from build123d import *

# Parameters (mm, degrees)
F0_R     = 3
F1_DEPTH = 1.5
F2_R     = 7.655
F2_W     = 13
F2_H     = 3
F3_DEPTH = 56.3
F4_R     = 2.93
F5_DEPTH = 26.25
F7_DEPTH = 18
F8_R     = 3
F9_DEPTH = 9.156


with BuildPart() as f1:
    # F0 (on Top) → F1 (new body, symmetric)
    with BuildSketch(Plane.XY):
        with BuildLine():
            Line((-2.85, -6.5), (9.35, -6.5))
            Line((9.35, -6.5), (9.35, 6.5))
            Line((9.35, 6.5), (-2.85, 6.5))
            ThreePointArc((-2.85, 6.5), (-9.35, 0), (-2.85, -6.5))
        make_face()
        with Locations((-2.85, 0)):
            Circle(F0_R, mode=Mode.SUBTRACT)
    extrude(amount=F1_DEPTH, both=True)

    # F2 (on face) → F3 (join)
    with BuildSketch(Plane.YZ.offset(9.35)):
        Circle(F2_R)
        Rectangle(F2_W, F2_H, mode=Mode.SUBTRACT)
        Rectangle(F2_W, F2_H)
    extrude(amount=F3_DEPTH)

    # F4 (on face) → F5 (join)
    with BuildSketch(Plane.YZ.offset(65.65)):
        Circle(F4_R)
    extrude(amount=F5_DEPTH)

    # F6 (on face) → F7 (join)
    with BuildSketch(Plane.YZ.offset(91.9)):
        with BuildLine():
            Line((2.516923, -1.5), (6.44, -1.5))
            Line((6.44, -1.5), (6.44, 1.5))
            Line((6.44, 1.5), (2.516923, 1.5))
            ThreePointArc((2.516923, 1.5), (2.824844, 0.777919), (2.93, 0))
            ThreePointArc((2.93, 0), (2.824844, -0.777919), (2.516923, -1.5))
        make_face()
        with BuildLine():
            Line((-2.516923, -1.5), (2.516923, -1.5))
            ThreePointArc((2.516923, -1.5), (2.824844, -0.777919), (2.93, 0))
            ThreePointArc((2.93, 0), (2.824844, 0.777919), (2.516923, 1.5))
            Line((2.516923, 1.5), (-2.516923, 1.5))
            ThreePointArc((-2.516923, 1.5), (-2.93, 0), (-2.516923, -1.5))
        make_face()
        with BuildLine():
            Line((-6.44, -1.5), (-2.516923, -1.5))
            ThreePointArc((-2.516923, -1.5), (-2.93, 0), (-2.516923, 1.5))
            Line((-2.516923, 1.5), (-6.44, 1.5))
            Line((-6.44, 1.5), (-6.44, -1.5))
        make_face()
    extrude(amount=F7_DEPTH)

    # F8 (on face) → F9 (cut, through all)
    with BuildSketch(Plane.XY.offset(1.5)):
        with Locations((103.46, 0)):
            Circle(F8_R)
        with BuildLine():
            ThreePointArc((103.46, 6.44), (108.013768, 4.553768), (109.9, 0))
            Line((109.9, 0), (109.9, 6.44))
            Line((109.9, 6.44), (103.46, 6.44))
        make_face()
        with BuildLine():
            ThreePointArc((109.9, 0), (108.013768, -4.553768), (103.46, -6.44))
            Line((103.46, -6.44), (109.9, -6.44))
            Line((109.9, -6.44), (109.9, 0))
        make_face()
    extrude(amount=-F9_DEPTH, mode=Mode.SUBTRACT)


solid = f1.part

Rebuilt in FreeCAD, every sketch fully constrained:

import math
import FreeCAD as App
import Part
import Sketcher
from FreeCAD import Vector


def add_polygon(sketch, points):
    """Adds a closed chain of lines whose ends are joined by coincident constraints."""
    first, n = sketch.GeometryCount, len(points)
    for a, b in zip(points, points[1:] + points[:1]):
        sketch.addGeometry(Part.LineSegment(App.Vector(*a, 0), App.Vector(*b, 0)), False)
    for i in range(n):
        sketch.addConstraint(Sketcher.Constraint("Coincident", first + i, 2, first + (i + 1) % n, 1))

doc = App.newDocument("Part")
body = doc.addObject("PartDesign::Body", "Body")

sketch1 = body.newObject("Sketcher::SketchObject", "Sketch")
sketch1.AttachmentSupport = (doc.getObject("XY_Plane"), [""])
sketch1.MapMode = "FlatFace"
sketch1.addGeometry([
    Part.LineSegment(Vector(-2.85, -6.5, 0), Vector(9.35, -6.5, 0)),
    Part.LineSegment(Vector(9.35, -6.5, 0), Vector(9.35, 6.5, 0)),
    Part.LineSegment(Vector(9.35, 6.5, 0), Vector(-2.85, 6.5, 0)),
    Part.ArcOfCircle(Part.Circle(Vector(-2.85, 0, 0), Vector(0, 0, 1), 6.5), math.radians(90), math.radians(270)),
    Part.Circle(Vector(-2.85, 0, 0), Vector(0, 0, 1), 3),
], False)
sketch1.addConstraint([
    Sketcher.Constraint("Coincident", 0, 2, 1, 1),
    Sketcher.Constraint("Coincident", 1, 2, 2, 1),
    Sketcher.Constraint("Tangent", 2, 2, 3, 1),
    Sketcher.Constraint("Tangent", 3, 2, 0, 1),
    Sketcher.Constraint("Horizontal", 0),
    Sketcher.Constraint("Vertical", 1),
    Sketcher.Constraint("Horizontal", 2),
    Sketcher.Constraint("Coincident", 4, 3, 3, 3),
    Sketcher.Constraint("PointOnObject", 3, 3, -1),
    Sketcher.Constraint("Diameter", 4, 6.0),
    Sketcher.Constraint("Radius", 3, 6.5),
    Sketcher.Constraint("DistanceX", 0, 1, 0, 2, 12.2),
    Sketcher.Constraint("DistanceX", 3, 3, -1, 1, 2.85),
])
pad1 = body.newObject("PartDesign::Pad", "Pad")
pad1.Profile = sketch1
pad1.Length = 3
pad1.Midplane = True

sketch2 = body.newObject("Sketcher::SketchObject", "Sketch001")
sketch2.AttachmentSupport = (doc.getObject("YZ_Plane"), [""])
sketch2.MapMode = "FlatFace"
sketch2.AttachmentOffset = App.Placement(Vector(0, 0, 9.35), App.Rotation())
sketch2.addGeometry(Part.Circle(Vector(0, 0, 0), Vector(0, 0, 1), 7.655), False)
sketch2.addConstraint([
    Sketcher.Constraint("Coincident", 0, 3, -1, 1),
    Sketcher.Constraint("Diameter", 0, 15.31),
])
pad2 = body.newObject("PartDesign::Pad", "Pad001")
pad2.Profile = sketch2
pad2.Length = 56.3

sketch3 = body.newObject("Sketcher::SketchObject", "Sketch002")
sketch3.AttachmentSupport = (doc.getObject("YZ_Plane"), [""])
sketch3.MapMode = "FlatFace"
sketch3.AttachmentOffset = App.Placement(Vector(0, 0, 65.65), App.Rotation())
sketch3.addGeometry(Part.Circle(Vector(0, 0, 0), Vector(0, 0, 1), 2.93), False)
sketch3.addConstraint([
    Sketcher.Constraint("Coincident", 0, 3, -1, 1),
    Sketcher.Constraint("Diameter", 0, 5.86),
])
pad3 = body.newObject("PartDesign::Pad", "Pad002")
pad3.Profile = sketch3
pad3.Length = 26.25

sketch4 = body.newObject("Sketcher::SketchObject", "Sketch003")
sketch4.AttachmentSupport = (doc.getObject("YZ_Plane"), [""])
sketch4.MapMode = "FlatFace"
sketch4.AttachmentOffset = App.Placement(Vector(0, 0, 91.9), App.Rotation())
add_polygon(sketch4, [(6.44, -1.5), (6.44, 1.5), (-6.44, 1.5), (-6.44, -1.5)])
sketch4.addConstraint([
    Sketcher.Constraint("Vertical", 0),
    Sketcher.Constraint("Horizontal", 1),
    Sketcher.Constraint("Vertical", 2),
    Sketcher.Constraint("Horizontal", 3),
    Sketcher.Constraint("Symmetric", 0, 2, 2, 2, -1, 1),
    Sketcher.Constraint("DistanceY", 0, 1, 0, 2, 3.0),
    Sketcher.Constraint("DistanceX", 1, 2, 1, 1, 12.88),
])
pad4 = body.newObject("PartDesign::Pad", "Pad003")
pad4.Profile = sketch4
pad4.Length = 18

sketch5 = body.newObject("Sketcher::SketchObject", "Sketch004")
sketch5.AttachmentSupport = (doc.getObject("XY_Plane"), [""])
sketch5.MapMode = "FlatFace"
sketch5.AttachmentOffset = App.Placement(Vector(0, 0, 1.5), App.Rotation())
sketch5.addGeometry([
    Part.Circle(Vector(103.46, 0, 0), Vector(0, 0, 1), 3),
    Part.ArcOfCircle(Part.Circle(Vector(103.460001, 0.000001, 0), Vector(0, 0, 1), 6.439999), math.radians(-0.00001), math.radians(90.00001)),
    Part.LineSegment(Vector(109.9, 0, 0), Vector(109.9, 6.44, 0)),
    Part.LineSegment(Vector(109.9, 6.44, 0), Vector(103.46, 6.44, 0)),
    Part.ArcOfCircle(Part.Circle(Vector(103.460001, -0.000001, 0), Vector(0, 0, 1), 6.439999), math.radians(-90.00001), math.radians(0.00001)),
    Part.LineSegment(Vector(103.46, -6.44, 0), Vector(109.9, -6.44, 0)),
    Part.LineSegment(Vector(109.9, -6.44, 0), Vector(109.9, 0, 0)),
], False)
sketch5.addConstraint([
    Sketcher.Constraint("Tangent", 1, 1, 2, 1),
    Sketcher.Constraint("Coincident", 2, 2, 3, 1),
    Sketcher.Constraint("Tangent", 3, 2, 1, 2),
    Sketcher.Constraint("Tangent", 4, 1, 5, 1),
    Sketcher.Constraint("Coincident", 5, 2, 6, 1),
    Sketcher.Constraint("Tangent", 6, 2, 4, 2),
    Sketcher.Constraint("Vertical", 2),
    Sketcher.Constraint("Horizontal", 3),
    Sketcher.Constraint("Horizontal", 5),
    Sketcher.Constraint("Vertical", 6),
    Sketcher.Constraint("Coincident", 1, 3, 0, 3),
    Sketcher.Constraint("Coincident", 4, 3, 0, 3),
    Sketcher.Constraint("Equal", 1, 4),
    Sketcher.Constraint("PointOnObject", 0, 3, -1),
    Sketcher.Constraint("Diameter", 0, 6.0),
    Sketcher.Constraint("Radius", 1, 6.439999),
    Sketcher.Constraint("DistanceX", -1, 1, 1, 1, 109.9),
])
pocket1 = body.newObject("PartDesign::Pocket", "Pocket")
pocket1.Profile = sketch5
pocket1.Type = "ThroughAll"

doc.recompute()
